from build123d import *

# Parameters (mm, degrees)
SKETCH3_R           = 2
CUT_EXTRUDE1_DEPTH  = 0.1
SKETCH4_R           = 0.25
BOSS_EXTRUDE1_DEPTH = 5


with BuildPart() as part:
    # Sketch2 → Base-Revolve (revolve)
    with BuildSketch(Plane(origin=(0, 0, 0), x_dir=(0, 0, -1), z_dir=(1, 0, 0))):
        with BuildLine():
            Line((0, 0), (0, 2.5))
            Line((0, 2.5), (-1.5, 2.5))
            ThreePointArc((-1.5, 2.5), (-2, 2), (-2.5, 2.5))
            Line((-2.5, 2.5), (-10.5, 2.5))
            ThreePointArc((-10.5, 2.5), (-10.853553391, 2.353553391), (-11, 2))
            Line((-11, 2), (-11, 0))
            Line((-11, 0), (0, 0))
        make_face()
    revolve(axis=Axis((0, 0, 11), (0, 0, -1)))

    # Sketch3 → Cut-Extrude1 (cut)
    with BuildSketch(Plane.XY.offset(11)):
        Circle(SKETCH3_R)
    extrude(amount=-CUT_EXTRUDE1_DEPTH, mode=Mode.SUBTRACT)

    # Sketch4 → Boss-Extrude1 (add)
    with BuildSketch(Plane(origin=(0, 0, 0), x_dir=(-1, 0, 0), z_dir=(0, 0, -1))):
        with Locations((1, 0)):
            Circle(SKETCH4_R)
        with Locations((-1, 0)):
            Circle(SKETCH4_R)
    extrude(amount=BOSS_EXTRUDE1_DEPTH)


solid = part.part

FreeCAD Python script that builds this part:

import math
import FreeCAD as App
import Part
import Sketcher
from FreeCAD import Vector
Q = App.Units.Quantity

doc = App.newDocument("Part")
params = doc.addObject("Spreadsheet::Sheet", "Params")
for row, (alias, value) in enumerate([
    ("sketch1_radius", "0.5 mm"),
    ("sketch1_width", "2 mm"),
    ("sketch1_height", "8 mm"),
    ("sketch1_height2", "11 mm"),
    ("revolution_angle", "360 deg"),
    ("sketch2_diameter", "4 mm"),
    ("pocket1_length", "0.1 mm"),
    ("sketch3_diameter", "0.5 mm"),
    ("pad1_length", "5 mm"),
], start=1):
    params.set(f"A{row}", alias)
    params.set(f"B{row}", "=" + value)
    params.setAlias(f"B{row}", alias)

body = doc.addObject("PartDesign::Body", "Body")

sketch1 = body.newObject("Sketcher::SketchObject", "Sketch")
sketch1.AttachmentSupport = (doc.getObject("YZ_Plane"), [""])
sketch1.MapMode = "FlatFace"
sketch1.addGeometry(Part.LineSegment(Vector(0, 0, 0), Vector(2.5, 0, 0)), False)
sketch1.addGeometry(Part.LineSegment(Vector(2.5, 0, 0), Vector(2.5, 1.5, 0)), False)
sketch1.addGeometry(Part.ArcOfCircle(Part.Circle(Vector(2.5, 2, 0), Vector(0, 0, 1), 0.5), math.radians(90), math.radians(270)), False)
sketch1.addGeometry(Part.LineSegment(Vector(2.5, 2.5, 0), Vector(2.5, 10.5, 0)), False)
sketch1.addGeometry(Part.ArcOfCircle(Part.Circle(Vector(2, 10.5, 0), Vector(0, 0, 1), 0.5), math.radians(0), math.radians(90)), False)
sketch1.addGeometry(Part.LineSegment(Vector(2, 11, 0), Vector(0, 11, 0)), False)
sketch1.addGeometry(Part.LineSegment(Vector(0, 11, 0), Vector(0, 0, 0)), False)
sketch1.addConstraint(Sketcher.Constraint("Coincident", 0, 2, 1, 1))
sketch1.addConstraint(Sketcher.Constraint("Coincident", 1, 2, 2, 2))
sketch1.addConstraint(Sketcher.Constraint("Coincident", 2, 1, 3, 1))
sketch1.addConstraint(Sketcher.Constraint("Tangent", 3, 2, 4, 1))
sketch1.addConstraint(Sketcher.Constraint("Tangent", 4, 2, 5, 1))
sketch1.addConstraint(Sketcher.Constraint("Coincident", 5, 2, 6, 1))
sketch1.addConstraint(Sketcher.Constraint("Coincident", 6, 2, 0, 1))
sketch1.addConstraint(Sketcher.Constraint("Horizontal", 0))
sketch1.addConstraint(Sketcher.Constraint("Vertical", 1))
sketch1.addConstraint(Sketcher.Constraint("Vertical", 3))
sketch1.addConstraint(Sketcher.Constraint("Horizontal", 5))
sketch1.addConstraint(Sketcher.Constraint("Vertical", 6))
sketch1.addConstraint(Sketcher.Constraint("Coincident", 6, 2, -1, 1))
sketch1.addConstraint(Sketcher.Constraint("Equal", 2, 4))
sketch1.addConstraint(Sketcher.Constraint("Vertical", 2, 3, 0, 2))
sketch1.addConstraint(Sketcher.Constraint("Vertical", 1, 2, 2, 1))
sketch1.addConstraint(Sketcher.Constraint("Radius", 2, Q("0.5 mm")))
sketch1.addConstraint(Sketcher.Constraint("DistanceX", 5, 2, 5, 1, Q("2 mm")))
sketch1.addConstraint(Sketcher.Constraint("DistanceY", 3, 1, 3, 2, Q("8 mm")))
sketch1.addConstraint(Sketcher.Constraint("DistanceY", 6, 2, 6, 1, Q("11 mm")))
sketch1.setExpression("Constraints[16]", "Params.sketch1_radius")
sketch1.setExpression("Constraints[17]", "Params.sketch1_width")
sketch1.setExpression("Constraints[18]", "Params.sketch1_height")
sketch1.setExpression("Constraints[19]", "Params.sketch1_height2")
revolution = body.newObject("PartDesign::Revolution", "Revolution")
revolution.Profile = sketch1
revolution.ReferenceAxis = (sketch1, ["V_Axis"])
revolution.setExpression("Angle", "Params.revolution_angle")

sketch2 = body.newObject("Sketcher::SketchObject", "Sketch001")
sketch2.AttachmentSupport = (doc.getObject("XY_Plane"), [""])
sketch2.MapMode = "FlatFace"
sketch2.AttachmentOffset = App.Placement(Vector(0, 0, 11), App.Rotation())
sketch2.addGeometry(Part.Circle(Vector(0, 0, 0), Vector(0, 0, 1), 2), False)
sketch2.addConstraint(Sketcher.Constraint("Coincident", 0, 3, -1, 1))
sketch2.addConstraint(Sketcher.Constraint("Diameter", 0, Q("4 mm")))
sketch2.setExpression("Constraints[1]", "Params.sketch2_diameter")
pocket1 = body.newObject("PartDesign::Pocket", "Pocket")
pocket1.Profile = sketch2
pocket1.setExpression("Length", "Params.pocket1_length")

sketch3 = body.newObject("Sketcher::SketchObject", "Sketch002")
sketch3.AttachmentSupport = (doc.getObject("XY_Plane"), [""])
sketch3.MapMode = "FlatFace"
sketch3.addGeometry(Part.Circle(Vector(-1, 0, 0), Vector(0, 0, 1), 0.25), False)
sketch3.addGeometry(Part.Circle(Vector(1, 0, 0), Vector(0, 0, 1), 0.25), False)
sketch3.addConstraint(Sketcher.Constraint("Equal", 0, 1))
sketch3.addConstraint(Sketcher.Constraint("Symmetric", 0, 3, 1, 3, -1, 1))
sketch3.addConstraint(Sketcher.Constraint("PointOnObject", 0, 3, -1))
sketch3.addConstraint(Sketcher.Constraint("Diameter", 0, Q("0.5 mm")))
sketch3.addConstraint(Sketcher.Constraint("DistanceX", 0, 3, -1, 1, Q("1 mm")))
sketch3.setExpression("Constraints[3]", "Params.sketch3_diameter")
pad1 = body.newObject("PartDesign::Pad", "Pad")
pad1.Profile = sketch3
pad1.setExpression("Length", "Params.pad1_length")
pad1.Reversed = True

doc.recompute()
